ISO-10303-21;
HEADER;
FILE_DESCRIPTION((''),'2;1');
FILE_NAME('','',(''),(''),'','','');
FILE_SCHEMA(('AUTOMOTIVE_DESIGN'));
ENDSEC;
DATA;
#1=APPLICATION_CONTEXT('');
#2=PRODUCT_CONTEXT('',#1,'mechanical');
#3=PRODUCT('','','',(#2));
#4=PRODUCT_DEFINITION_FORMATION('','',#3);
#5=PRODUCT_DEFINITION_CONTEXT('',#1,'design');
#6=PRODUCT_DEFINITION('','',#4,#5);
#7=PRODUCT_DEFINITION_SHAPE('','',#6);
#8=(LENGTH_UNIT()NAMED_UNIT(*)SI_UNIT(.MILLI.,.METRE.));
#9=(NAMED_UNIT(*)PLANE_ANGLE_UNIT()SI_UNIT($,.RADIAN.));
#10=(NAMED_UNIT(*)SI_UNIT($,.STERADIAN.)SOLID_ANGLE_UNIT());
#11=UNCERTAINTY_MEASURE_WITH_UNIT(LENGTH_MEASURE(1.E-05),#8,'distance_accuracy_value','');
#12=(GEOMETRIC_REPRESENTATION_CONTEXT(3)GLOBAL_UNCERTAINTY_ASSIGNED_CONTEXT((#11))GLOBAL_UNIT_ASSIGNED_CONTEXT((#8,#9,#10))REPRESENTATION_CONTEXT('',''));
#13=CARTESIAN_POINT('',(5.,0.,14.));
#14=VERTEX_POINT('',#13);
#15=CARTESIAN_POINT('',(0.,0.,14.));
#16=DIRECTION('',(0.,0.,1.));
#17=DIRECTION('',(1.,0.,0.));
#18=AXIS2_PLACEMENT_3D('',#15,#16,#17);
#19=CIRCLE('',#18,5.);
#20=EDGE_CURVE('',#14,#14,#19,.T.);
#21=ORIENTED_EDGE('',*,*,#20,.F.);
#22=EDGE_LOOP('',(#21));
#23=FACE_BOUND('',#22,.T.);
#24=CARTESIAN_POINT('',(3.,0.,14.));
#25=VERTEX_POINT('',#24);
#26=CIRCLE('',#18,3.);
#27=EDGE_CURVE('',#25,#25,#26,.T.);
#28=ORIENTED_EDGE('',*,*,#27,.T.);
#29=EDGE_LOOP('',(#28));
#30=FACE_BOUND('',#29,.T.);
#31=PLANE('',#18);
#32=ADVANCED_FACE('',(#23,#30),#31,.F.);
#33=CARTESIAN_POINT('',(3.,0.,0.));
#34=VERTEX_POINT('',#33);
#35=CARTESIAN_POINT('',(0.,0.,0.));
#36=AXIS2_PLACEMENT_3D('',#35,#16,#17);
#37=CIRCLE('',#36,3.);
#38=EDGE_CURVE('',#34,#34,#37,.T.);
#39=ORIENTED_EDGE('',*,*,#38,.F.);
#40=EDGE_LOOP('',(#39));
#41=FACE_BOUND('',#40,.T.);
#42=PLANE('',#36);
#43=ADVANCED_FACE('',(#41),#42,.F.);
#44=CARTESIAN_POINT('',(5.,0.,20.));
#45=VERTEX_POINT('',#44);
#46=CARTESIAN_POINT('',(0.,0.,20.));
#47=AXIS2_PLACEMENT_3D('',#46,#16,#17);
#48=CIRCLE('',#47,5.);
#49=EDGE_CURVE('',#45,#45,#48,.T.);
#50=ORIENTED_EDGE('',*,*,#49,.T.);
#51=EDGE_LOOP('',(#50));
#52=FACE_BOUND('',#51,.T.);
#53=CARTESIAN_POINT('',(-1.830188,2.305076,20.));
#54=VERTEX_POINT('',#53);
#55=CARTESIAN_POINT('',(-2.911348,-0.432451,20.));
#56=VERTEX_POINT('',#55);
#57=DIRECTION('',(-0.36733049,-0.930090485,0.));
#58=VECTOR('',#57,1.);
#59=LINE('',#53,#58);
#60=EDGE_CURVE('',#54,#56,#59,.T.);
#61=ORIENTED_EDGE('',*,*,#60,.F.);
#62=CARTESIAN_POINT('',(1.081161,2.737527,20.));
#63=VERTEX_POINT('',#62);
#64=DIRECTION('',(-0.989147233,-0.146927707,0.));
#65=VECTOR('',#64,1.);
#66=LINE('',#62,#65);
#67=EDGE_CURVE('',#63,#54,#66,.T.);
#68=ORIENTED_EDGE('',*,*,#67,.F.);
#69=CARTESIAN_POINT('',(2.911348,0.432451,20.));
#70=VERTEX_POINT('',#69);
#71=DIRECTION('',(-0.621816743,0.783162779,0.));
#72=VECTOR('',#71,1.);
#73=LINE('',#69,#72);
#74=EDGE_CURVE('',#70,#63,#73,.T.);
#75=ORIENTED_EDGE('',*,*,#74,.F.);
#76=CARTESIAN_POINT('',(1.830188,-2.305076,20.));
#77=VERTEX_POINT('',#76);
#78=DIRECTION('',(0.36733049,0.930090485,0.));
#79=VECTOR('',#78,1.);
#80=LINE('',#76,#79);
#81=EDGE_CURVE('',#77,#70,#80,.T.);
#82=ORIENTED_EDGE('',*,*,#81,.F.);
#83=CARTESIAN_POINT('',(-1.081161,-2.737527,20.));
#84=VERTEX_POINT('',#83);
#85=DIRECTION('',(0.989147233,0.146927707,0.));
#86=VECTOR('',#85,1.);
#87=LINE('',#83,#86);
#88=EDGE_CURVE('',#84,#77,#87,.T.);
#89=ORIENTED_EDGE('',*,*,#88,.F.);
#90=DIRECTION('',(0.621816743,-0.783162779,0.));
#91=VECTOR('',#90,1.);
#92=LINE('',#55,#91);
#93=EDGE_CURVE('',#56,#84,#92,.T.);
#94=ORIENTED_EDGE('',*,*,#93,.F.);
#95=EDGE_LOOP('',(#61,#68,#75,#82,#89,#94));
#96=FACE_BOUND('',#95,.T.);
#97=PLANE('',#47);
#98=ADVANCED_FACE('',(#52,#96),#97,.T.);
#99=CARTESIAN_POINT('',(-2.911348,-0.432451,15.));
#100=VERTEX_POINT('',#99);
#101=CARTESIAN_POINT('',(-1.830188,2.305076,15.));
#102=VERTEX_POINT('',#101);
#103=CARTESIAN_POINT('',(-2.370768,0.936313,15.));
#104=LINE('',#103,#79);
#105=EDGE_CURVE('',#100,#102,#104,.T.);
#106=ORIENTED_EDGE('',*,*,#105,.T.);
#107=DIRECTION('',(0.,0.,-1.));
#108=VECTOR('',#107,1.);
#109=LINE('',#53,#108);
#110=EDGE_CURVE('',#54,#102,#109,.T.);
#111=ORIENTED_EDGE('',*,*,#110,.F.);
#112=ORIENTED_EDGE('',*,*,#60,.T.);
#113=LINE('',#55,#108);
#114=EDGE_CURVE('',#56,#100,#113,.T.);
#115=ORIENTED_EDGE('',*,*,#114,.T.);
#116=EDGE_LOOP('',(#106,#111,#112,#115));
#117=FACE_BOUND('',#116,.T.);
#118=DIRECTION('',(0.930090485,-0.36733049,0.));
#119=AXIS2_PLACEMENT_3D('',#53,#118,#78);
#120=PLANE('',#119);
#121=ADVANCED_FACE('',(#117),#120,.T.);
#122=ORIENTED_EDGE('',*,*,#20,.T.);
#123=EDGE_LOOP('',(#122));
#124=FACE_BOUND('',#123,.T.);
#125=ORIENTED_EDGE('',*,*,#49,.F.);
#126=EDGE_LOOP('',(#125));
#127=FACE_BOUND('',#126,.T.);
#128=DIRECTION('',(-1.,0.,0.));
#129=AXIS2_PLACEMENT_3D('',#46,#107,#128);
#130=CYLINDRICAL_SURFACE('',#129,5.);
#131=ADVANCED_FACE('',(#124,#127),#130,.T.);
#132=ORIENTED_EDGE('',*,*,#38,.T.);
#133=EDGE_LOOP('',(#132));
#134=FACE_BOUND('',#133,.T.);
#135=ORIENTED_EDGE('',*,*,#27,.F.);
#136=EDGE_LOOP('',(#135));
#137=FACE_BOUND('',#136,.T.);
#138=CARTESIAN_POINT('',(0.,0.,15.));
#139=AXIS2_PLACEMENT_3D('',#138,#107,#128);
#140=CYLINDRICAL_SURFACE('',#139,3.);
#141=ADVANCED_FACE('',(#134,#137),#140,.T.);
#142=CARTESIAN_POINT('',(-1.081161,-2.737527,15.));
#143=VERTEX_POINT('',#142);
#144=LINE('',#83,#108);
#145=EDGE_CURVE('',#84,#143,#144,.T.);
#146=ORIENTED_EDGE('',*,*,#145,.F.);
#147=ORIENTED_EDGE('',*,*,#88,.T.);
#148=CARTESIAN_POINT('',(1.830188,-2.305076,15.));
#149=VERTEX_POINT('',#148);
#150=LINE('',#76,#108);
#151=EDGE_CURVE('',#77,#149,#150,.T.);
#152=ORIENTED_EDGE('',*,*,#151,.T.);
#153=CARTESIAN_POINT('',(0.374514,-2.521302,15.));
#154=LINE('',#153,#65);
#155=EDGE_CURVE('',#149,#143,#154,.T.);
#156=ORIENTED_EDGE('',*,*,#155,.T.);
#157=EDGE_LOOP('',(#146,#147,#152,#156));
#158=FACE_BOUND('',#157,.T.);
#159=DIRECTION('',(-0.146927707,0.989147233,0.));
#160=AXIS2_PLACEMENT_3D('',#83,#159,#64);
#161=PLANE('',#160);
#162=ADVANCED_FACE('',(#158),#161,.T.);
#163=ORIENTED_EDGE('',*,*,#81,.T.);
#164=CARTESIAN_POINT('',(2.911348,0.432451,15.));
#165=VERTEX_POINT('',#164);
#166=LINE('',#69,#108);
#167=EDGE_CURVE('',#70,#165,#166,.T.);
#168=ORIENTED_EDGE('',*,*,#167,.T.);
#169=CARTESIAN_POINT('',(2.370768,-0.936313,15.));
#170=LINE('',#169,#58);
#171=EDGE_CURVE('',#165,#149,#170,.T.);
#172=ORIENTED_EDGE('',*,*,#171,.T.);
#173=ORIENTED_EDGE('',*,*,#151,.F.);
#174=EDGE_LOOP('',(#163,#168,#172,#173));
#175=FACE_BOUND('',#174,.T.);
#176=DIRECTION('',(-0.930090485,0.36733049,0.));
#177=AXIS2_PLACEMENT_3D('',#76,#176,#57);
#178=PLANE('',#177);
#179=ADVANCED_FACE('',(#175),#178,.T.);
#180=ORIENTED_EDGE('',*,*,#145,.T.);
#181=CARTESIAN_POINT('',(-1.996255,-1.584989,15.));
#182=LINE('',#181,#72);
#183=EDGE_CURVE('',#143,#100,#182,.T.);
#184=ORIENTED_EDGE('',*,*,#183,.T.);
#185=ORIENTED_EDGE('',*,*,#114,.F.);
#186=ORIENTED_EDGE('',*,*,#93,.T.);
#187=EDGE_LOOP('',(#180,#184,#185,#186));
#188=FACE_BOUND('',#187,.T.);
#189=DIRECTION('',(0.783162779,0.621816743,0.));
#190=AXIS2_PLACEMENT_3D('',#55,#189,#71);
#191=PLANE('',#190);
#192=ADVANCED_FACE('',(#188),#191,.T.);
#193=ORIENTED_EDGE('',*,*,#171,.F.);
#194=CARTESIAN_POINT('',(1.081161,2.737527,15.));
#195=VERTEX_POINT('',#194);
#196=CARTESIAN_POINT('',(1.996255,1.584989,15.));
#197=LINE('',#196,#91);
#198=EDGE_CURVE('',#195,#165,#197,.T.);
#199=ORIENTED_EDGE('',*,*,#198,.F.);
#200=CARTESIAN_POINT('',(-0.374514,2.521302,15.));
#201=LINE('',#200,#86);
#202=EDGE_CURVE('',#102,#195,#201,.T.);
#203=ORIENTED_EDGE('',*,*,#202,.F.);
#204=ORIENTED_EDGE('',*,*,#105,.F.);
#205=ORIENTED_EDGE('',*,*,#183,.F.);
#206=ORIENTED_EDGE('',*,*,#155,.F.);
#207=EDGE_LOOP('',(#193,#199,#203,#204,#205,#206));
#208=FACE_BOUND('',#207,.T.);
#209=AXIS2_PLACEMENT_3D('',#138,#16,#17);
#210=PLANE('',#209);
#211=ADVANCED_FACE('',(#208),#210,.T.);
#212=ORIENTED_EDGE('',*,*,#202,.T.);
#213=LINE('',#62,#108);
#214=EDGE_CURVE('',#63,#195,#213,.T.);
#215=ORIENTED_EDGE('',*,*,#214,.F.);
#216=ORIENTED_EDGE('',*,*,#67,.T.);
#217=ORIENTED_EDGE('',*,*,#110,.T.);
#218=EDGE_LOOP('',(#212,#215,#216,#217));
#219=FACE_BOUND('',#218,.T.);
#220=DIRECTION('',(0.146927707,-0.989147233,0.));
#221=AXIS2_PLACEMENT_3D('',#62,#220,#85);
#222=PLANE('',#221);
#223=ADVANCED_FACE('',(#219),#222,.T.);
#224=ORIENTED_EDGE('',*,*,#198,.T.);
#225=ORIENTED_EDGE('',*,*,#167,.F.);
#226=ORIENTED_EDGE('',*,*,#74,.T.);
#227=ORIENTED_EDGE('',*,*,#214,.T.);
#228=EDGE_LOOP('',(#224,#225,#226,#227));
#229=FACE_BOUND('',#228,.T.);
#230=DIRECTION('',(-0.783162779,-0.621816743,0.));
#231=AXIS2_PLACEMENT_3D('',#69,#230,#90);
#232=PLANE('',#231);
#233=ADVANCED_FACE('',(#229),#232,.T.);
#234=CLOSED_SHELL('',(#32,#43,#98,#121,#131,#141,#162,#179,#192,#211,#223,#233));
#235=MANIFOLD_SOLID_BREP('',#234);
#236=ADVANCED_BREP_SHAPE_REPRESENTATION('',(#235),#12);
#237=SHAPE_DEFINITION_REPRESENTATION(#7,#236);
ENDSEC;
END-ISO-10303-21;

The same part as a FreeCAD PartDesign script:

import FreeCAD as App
import Part
import Sketcher

V = App.Vector


def add_polygon(sketch, points):
    """Adds a closed chain of lines whose ends are joined by coincident constraints."""
    first, n = sketch.GeometryCount, len(points)
    for a, b in zip(points, points[1:] + points[:1]):
        sketch.addGeometry(Part.LineSegment(App.Vector(*a, 0), App.Vector(*b, 0)), False)
    for i in range(n):
        sketch.addConstraint(Sketcher.Constraint("Coincident", first + i, 2, first + (i + 1) % n, 1))

doc = App.newDocument("Part")
params = doc.addObject("Spreadsheet::Sheet", "Params")
for row, (alias, value) in enumerate([
    ("sketch1_diameter", "6 mm"),
    ("pad1_length", "15 mm"),
    ("sketch2_diameter", "10 mm"),
    ("pad2_length", "5 mm"),
    ("pad2_length2", "1 mm"),
], start=1):
    params.set(f"A{row}", alias)
    params.set(f"B{row}", "=" + value)
    params.setAlias(f"B{row}", alias)

body = doc.addObject("PartDesign::Body", "Body")

sketch1 = body.newObject("Sketcher::SketchObject", "Sketch")
sketch1.AttachmentSupport = (doc.getObject("XY_Plane"), [""])
sketch1.MapMode = "FlatFace"
sketch1.addGeometry(Part.Circle(V(0, 0, 0), V(0, 0, 1), 3), False)
sketch1.addConstraint([
    Sketcher.Constraint("Coincident", 0, 3, -1, 1),
    Sketcher.Constraint("Diameter", 0, 6.0),
])
sketch1.setExpression("Constraints[1]", "Params.sketch1_diameter")
pad1 = body.newObject("PartDesign::Pad", "Pad")
pad1.Profile = sketch1
pad1.setExpression("Length", "Params.pad1_length")

sketch2 = body.newObject("Sketcher::SketchObject", "Sketch001")
sketch2.AttachmentSupport = (doc.getObject("XY_Plane"), [""])
sketch2.MapMode = "FlatFace"
sketch2.AttachmentOffset = App.Placement(V(0, 0, 15), App.Rotation())
sketch2.addGeometry(Part.Circle(V(0, 0, 0), V(0, 0, 1), 5), False)
add_polygon(sketch2, [(-2.9, -0.4), (-1.8, 2.3), (1.1, 2.7), (2.9, 0.4), (1.8, -2.3), (-1.1, -2.7)])
sketch2.addConstraint([
    Sketcher.Constraint("Coincident", 0, 3, -1, 1),
    Sketcher.Constraint("Symmetric", 1, 2, 4, 2, -1, 1),
    Sketcher.Constraint("Symmetric", 2, 2, 5, 2, -1, 1),
    Sketcher.Constraint("Symmetric", 3, 2, 6, 2, -1, 1),
    Sketcher.Constraint("Equal", 1, 2),
    Sketcher.Constraint("Equal", 2, 3),
    Sketcher.Constraint("Diameter", 0, 10.0),
    Sketcher.Constraint("Distance", 1, 2.943291),
    Sketcher.Constraint("DistanceX", -1, 1, 2, 2, 1.081161),
    Sketcher.Constraint("DistanceX", -1, 1, 3, 2, 2.911348),
    Sketcher.Constraint("DistanceY", -1, 1, 3, 2, 0.432451),
])
sketch2.setExpression("Constraints[12]", "Params.sketch2_diameter")
pad2 = body.newObject("PartDesign::Pad", "Pad001")
pad2.Profile = sketch2
pad2.Type = "TwoLengths"
pad2.setExpression("Length", "Params.pad2_length")
pad2.setExpression("Length2", "Params.pad2_length2")

doc.recompute()
